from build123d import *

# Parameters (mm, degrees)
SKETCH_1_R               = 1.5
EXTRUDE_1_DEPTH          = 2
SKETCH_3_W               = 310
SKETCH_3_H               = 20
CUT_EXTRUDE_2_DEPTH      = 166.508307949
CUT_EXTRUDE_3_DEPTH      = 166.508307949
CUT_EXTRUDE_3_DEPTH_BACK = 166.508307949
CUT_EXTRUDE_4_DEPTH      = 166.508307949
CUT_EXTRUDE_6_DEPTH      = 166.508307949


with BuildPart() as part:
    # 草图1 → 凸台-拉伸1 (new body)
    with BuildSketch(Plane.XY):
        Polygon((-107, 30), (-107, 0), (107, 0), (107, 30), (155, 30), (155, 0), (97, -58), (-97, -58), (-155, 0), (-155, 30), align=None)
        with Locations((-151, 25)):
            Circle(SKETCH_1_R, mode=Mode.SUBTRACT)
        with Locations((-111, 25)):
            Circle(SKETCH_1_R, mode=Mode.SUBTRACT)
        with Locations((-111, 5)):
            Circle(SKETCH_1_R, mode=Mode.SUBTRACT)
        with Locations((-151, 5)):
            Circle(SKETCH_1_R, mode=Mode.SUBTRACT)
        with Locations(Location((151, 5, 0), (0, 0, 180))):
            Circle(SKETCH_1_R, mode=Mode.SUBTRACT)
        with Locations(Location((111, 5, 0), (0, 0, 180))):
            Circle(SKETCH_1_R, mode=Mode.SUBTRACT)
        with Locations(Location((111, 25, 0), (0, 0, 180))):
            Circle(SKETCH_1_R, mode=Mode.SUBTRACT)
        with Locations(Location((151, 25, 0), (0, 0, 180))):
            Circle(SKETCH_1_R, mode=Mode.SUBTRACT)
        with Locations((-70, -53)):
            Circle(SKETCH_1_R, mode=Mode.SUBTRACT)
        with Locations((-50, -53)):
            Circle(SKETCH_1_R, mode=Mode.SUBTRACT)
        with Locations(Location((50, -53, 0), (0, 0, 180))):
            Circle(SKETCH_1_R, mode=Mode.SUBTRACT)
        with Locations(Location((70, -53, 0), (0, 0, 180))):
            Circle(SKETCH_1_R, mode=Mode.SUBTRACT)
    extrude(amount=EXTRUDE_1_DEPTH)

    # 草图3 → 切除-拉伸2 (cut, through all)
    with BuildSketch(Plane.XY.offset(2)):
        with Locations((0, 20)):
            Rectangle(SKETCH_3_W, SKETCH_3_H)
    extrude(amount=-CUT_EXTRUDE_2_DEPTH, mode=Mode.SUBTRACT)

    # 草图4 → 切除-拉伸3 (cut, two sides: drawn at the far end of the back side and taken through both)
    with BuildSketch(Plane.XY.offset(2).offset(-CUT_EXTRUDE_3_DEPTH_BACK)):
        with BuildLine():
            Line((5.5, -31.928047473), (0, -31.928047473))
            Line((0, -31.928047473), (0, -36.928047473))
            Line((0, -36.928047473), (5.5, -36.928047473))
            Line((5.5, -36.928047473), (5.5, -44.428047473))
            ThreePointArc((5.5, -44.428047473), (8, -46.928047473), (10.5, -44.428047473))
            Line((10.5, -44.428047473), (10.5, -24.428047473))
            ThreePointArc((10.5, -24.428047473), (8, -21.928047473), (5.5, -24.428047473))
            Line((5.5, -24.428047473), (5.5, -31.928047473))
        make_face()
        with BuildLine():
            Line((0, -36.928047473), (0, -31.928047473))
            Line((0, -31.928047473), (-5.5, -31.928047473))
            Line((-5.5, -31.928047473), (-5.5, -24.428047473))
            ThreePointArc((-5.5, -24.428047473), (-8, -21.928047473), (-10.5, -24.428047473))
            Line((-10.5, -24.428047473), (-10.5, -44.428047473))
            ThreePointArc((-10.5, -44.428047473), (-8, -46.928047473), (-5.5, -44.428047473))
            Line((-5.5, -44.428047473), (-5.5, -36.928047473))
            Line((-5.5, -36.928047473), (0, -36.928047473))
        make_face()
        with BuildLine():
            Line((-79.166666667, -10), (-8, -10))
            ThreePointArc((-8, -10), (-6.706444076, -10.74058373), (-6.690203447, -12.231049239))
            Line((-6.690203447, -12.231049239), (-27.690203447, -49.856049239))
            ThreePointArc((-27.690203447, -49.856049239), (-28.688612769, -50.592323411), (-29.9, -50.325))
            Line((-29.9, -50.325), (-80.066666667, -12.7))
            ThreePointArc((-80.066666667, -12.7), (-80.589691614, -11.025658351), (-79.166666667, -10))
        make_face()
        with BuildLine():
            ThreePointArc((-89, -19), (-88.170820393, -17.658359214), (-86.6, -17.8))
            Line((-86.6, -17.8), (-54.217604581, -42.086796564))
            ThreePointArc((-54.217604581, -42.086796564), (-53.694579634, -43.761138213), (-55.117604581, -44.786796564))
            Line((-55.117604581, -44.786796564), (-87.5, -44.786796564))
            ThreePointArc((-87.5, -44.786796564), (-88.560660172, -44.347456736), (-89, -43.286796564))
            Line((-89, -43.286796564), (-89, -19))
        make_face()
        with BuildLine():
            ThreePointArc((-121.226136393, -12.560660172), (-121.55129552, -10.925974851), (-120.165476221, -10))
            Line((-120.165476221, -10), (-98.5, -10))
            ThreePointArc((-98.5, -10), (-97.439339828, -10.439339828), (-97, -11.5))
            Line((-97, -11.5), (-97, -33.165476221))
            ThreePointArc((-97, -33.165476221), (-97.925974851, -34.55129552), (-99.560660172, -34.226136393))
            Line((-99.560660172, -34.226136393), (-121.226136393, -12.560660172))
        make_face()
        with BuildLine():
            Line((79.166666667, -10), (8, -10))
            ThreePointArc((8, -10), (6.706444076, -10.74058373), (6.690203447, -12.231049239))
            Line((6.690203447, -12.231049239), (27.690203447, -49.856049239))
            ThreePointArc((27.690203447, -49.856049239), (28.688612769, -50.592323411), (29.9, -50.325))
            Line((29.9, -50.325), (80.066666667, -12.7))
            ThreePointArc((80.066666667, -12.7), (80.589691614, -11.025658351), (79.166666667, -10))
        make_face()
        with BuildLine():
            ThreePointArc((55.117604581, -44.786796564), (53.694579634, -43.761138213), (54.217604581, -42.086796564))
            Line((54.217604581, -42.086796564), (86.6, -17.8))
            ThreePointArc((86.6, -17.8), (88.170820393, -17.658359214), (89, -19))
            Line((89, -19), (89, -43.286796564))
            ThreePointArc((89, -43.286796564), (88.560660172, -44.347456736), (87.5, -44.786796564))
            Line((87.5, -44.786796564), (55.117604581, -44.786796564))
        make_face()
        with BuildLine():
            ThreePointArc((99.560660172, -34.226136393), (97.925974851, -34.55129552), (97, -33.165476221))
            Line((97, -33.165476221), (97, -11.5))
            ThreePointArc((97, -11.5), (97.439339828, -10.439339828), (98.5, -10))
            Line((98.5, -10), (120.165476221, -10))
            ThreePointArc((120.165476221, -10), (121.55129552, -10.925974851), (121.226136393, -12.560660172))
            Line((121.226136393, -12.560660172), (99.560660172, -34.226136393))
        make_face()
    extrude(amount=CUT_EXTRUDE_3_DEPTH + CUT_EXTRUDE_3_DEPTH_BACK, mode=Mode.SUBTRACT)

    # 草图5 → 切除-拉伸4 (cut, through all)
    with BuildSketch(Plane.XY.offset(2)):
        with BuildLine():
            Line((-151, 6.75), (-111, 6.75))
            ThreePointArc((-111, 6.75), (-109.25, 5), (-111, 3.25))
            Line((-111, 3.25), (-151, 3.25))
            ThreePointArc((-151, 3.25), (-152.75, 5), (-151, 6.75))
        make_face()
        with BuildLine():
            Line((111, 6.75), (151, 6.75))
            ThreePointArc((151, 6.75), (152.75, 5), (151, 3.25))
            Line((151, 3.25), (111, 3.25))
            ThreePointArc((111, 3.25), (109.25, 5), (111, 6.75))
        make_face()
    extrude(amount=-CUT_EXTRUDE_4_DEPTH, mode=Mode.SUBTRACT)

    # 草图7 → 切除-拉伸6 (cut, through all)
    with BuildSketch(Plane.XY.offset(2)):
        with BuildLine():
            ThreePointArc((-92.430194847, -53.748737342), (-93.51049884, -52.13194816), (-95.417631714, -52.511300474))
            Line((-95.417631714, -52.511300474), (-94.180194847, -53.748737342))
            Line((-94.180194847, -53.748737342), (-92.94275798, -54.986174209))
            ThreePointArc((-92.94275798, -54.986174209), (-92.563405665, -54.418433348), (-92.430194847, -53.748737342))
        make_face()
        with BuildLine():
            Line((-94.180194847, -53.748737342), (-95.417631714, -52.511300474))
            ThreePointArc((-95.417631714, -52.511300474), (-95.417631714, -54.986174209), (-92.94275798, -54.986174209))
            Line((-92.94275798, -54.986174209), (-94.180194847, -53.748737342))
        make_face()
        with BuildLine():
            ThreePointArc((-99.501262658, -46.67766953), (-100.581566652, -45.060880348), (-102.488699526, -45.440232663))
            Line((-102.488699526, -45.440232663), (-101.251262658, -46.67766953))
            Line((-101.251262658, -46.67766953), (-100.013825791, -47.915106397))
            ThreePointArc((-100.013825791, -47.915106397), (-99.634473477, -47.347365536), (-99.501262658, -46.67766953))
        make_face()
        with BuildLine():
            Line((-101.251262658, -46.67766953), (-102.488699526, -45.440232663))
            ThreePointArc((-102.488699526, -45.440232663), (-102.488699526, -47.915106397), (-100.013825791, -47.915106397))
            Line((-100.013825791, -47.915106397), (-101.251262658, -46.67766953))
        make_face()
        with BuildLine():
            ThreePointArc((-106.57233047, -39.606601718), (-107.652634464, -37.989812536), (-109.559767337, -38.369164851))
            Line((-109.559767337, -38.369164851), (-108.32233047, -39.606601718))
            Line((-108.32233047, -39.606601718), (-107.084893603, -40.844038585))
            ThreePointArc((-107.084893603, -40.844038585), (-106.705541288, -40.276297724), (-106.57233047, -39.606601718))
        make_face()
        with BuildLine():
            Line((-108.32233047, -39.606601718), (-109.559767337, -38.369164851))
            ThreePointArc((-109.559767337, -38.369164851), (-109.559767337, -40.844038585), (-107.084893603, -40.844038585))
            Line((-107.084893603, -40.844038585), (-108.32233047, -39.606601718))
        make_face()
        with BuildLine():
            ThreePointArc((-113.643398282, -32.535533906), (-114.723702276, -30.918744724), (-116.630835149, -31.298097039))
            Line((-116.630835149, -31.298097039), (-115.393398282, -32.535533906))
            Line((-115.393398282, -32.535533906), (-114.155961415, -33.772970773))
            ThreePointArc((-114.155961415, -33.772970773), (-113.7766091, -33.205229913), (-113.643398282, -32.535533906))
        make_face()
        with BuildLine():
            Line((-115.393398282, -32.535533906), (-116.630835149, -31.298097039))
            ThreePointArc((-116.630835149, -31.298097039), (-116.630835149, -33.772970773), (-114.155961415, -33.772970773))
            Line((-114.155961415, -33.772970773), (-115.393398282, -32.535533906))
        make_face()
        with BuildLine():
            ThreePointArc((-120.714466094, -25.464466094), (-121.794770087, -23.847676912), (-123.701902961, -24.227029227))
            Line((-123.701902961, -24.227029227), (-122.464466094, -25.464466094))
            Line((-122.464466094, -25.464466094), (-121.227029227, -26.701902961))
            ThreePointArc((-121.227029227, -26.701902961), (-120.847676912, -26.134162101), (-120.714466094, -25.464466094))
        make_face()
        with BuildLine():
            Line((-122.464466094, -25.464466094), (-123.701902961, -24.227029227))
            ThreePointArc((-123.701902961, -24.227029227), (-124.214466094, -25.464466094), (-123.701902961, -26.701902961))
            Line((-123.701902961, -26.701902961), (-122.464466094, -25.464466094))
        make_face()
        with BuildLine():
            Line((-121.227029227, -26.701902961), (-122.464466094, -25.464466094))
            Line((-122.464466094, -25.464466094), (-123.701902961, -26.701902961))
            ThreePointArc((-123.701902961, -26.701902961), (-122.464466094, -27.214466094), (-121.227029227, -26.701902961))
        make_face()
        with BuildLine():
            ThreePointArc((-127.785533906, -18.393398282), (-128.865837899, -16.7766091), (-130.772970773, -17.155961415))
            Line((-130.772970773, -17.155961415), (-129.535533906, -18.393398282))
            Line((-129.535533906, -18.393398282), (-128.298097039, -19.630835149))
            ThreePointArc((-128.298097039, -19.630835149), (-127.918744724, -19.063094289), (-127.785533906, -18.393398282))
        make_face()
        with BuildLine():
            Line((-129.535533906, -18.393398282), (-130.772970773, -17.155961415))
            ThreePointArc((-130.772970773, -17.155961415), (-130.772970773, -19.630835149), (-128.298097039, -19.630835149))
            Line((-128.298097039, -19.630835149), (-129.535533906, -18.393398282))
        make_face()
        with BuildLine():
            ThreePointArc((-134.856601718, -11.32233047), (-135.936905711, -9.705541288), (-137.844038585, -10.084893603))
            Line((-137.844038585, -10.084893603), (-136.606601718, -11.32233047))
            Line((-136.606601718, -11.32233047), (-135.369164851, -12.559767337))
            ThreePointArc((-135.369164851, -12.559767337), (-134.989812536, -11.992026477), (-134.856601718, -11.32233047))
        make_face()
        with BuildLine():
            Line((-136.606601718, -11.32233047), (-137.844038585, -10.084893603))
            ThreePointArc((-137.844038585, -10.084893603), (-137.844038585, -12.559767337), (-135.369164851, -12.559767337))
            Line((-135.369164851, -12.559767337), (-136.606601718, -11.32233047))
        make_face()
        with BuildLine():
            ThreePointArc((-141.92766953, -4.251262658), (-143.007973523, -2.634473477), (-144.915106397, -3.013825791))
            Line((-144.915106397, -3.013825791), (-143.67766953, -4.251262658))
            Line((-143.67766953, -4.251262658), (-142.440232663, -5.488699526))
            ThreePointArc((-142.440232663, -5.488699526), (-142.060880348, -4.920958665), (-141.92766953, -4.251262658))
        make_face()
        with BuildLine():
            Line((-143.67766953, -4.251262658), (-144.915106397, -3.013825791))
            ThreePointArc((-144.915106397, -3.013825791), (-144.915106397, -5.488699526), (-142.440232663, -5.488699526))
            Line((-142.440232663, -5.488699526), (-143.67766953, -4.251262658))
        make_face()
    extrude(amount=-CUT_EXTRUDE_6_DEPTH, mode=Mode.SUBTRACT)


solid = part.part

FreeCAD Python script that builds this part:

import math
import FreeCAD as App
import Part
import Sketcher

V = App.Vector


def add_polygon(sketch, points):
    """Adds a closed chain of lines whose ends are joined by coincident constraints."""
    first, n = sketch.GeometryCount, len(points)
    for a, b in zip(points, points[1:] + points[:1]):
        sketch.addGeometry(Part.LineSegment(App.Vector(*a, 0), App.Vector(*b, 0)), False)
    for i in range(n):
        sketch.addConstraint(Sketcher.Constraint("Coincident", first + i, 2, first + (i + 1) % n, 1))

doc = App.newDocument("Part")
params = doc.addObject("Spreadsheet::Sheet", "Params")
for row, (alias, value) in enumerate([
    ("sketch1_diameter", "3 mm"),
    ("sketch1_width", "48 mm"),
    ("sketch1_width2", "194 mm"),
    ("sketch1_width3", "214 mm"),
    ("sketch1_height", "30 mm"),
    ("pad1_length", "2 mm"),
    ("sketch2_width", "310 mm"),
    ("sketch2_height", "20 mm"),
    ("sketch3_radius", "2.5 mm"),
    ("sketch3_radius2", "1.5 mm"),
    ("sketch3_width", "11 mm"),
    ("sketch3_height", "20 mm"),
    ("sketch3_height2", "7.5 mm"),
    ("sketch4_width", "40 mm"),
    ("sketch4_radius", "1.75 mm"),
    ("sketch5_radius", "1.75 mm"),
], start=1):
    params.set(f"A{row}", alias)
    params.set(f"B{row}", "=" + value)
    params.setAlias(f"B{row}", alias)

body = doc.addObject("PartDesign::Body", "Body")

sketch1 = body.newObject("Sketcher::SketchObject", "Sketch")
sketch1.AttachmentSupport = (doc.getObject("XY_Plane"), [""])
sketch1.MapMode = "FlatFace"
add_polygon(sketch1, [(-107, 0), (-107, 30), (-155, 30), (-155, 0), (-97, -58), (97, -58), (155, 0), (155, 30), (107, 30), (107, 0)])
sketch1.addGeometry(Part.Circle(V(70, -53, 0), V(0, 0, 1), 1.5), False)
sketch1.addGeometry(Part.Circle(V(50, -53, 0), V(0, 0, 1), 1.5), False)
sketch1.addGeometry(Part.Circle(V(-50, -53, 0), V(0, 0, 1), 1.5), False)
sketch1.addGeometry(Part.Circle(V(-70, -53, 0), V(0, 0, 1), 1.5), False)
sketch1.addGeometry(Part.Circle(V(151, 5, 0), V(0, 0, 1), 1.5), False)
sketch1.addGeometry(Part.Circle(V(111, 5, 0), V(0, 0, 1), 1.5), False)
sketch1.addGeometry(Part.Circle(V(151, 25, 0), V(0, 0, 1), 1.5), False)
sketch1.addGeometry(Part.Circle(V(111, 25, 0), V(0, 0, 1), 1.5), False)
sketch1.addGeometry(Part.Circle(V(-111, 5, 0), V(0, 0, 1), 1.5), False)
sketch1.addGeometry(Part.Circle(V(-151, 5, 0), V(0, 0, 1), 1.5), False)
sketch1.addGeometry(Part.Circle(V(-111, 25, 0), V(0, 0, 1), 1.5), False)
sketch1.addGeometry(Part.Circle(V(-151, 25, 0), V(0, 0, 1), 1.5), False)
sketch1.addConstraint(Sketcher.Constraint("Vertical", 0))
sketch1.addConstraint(Sketcher.Constraint("Horizontal", 1))
sketch1.addConstraint(Sketcher.Constraint("Vertical", 2))
sketch1.addConstraint(Sketcher.Constraint("Horizontal", 4))
sketch1.addConstraint(Sketcher.Constraint("Vertical", 6))
sketch1.addConstraint(Sketcher.Constraint("Horizontal", 7))
sketch1.addConstraint(Sketcher.Constraint("Vertical", 8))
sketch1.addConstraint(Sketcher.Constraint("Horizontal", 9))
sketch1.addConstraint(Sketcher.Constraint("Equal", 10, 11))
sketch1.addConstraint(Sketcher.Constraint("Equal", 11, 12))
sketch1.addConstraint(Sketcher.Constraint("Equal", 12, 13))
sketch1.addConstraint(Sketcher.Constraint("Equal", 13, 14))
sketch1.addConstraint(Sketcher.Constraint("Equal", 14, 15))
sketch1.addConstraint(Sketcher.Constraint("Equal", 15, 16))
sketch1.addConstraint(Sketcher.Constraint("Equal", 16, 17))
sketch1.addConstraint(Sketcher.Constraint("Equal", 17, 18))
sketch1.addConstraint(Sketcher.Constraint("Equal", 18, 19))
sketch1.addConstraint(Sketcher.Constraint("Equal", 19, 20))
sketch1.addConstraint(Sketcher.Constraint("Equal", 20, 21))
sketch1.addConstraint(Sketcher.Constraint("Symmetric", 2, 2, 5, 2, -1, 1))
sketch1.addConstraint(Sketcher.Constraint("Symmetric", 8, 2, 9, 2, -1, 1))
sketch1.addConstraint(Sketcher.Constraint("Symmetric", 11, 3, 12, 3, -2))
sketch1.addConstraint(Sketcher.Constraint("Symmetric", 10, 3, 13, 3, -2))
sketch1.addConstraint(Sketcher.Constraint("Symmetric", 15, 3, 18, 3, -2))
sketch1.addConstraint(Sketcher.Constraint("Symmetric", 14, 3, 19, 3, -2))
sketch1.addConstraint(Sketcher.Constraint("Symmetric", 17, 3, 20, 3, -2))
sketch1.addConstraint(Sketcher.Constraint("Symmetric", 16, 3, 21, 3, -2))
sketch1.addConstraint(Sketcher.Constraint("PointOnObject", 2, 2, -1))
sketch1.addConstraint(Sketcher.Constraint("Perpendicular", 3, 5))
sketch1.addConstraint(Sketcher.Constraint("Horizontal", 10, 3, 11, 3))
sketch1.addConstraint(Sketcher.Constraint("Horizontal", 14, 3, 15, 3))
sketch1.addConstraint(Sketcher.Constraint("Horizontal", 16, 3, 17, 3))
sketch1.addConstraint(Sketcher.Constraint("Horizontal", 1, 2, 6, 2))
sketch1.addConstraint(Sketcher.Constraint("Vertical", 14, 3, 16, 3))
sketch1.addConstraint(Sketcher.Constraint("Vertical", 15, 3, 17, 3))
sketch1.addConstraint(Sketcher.Constraint("Equal", 3, 5))
sketch1.addConstraint(Sketcher.Constraint("Diameter", 10, 3.0))
sketch1.addConstraint(Sketcher.Constraint("DistanceX", 1, 2, 1, 1, 48.0))
sketch1.addConstraint(Sketcher.Constraint("DistanceX", 4, 1, 4, 2, 194.0))
sketch1.addConstraint(Sketcher.Constraint("DistanceX", 9, 2, 9, 1, 214.0))
sketch1.addConstraint(Sketcher.Constraint("DistanceY", 0, 1, 0, 2, 30.0))
sketch1.addConstraint(Sketcher.Constraint("DistanceX", -1, 1, 10, 3, 70.0))
sketch1.addConstraint(Sketcher.Constraint("DistanceY", 10, 3, -1, 1, 53.0))
sketch1.addConstraint(Sketcher.Constraint("DistanceX", -1, 1, 11, 3, 50.0))
sketch1.addConstraint(Sketcher.Constraint("DistanceX", -1, 1, 14, 3, 151.0))
sketch1.addConstraint(Sketcher.Constraint("DistanceY", -1, 1, 14, 3, 5.0))
sketch1.addConstraint(Sketcher.Constraint("DistanceX", -1, 1, 15, 3, 111.0))
sketch1.addConstraint(Sketcher.Constraint("DistanceY", -1, 1, 16, 3, 25.0))
sketch1.setExpression("Constraints[46]", "Params.sketch1_diameter")
sketch1.setExpression("Constraints[47]", "Params.sketch1_width")
sketch1.setExpression("Constraints[48]", "Params.sketch1_width2")
sketch1.setExpression("Constraints[49]", "Params.sketch1_width3")
sketch1.setExpression("Constraints[50]", "Params.sketch1_height")
pad1 = body.newObject("PartDesign::Pad", "Pad")
pad1.Profile = sketch1
pad1.setExpression("Length", "Params.pad1_length")

sketch2 = body.newObject("Sketcher::SketchObject", "Sketch001")
sketch2.AttachmentSupport = (doc.getObject("XY_Plane"), [""])
sketch2.MapMode = "FlatFace"
sketch2.AttachmentOffset = App.Placement(V(0, 0, 2), App.Rotation())
add_polygon(sketch2, [(-155, 30), (-155, 10), (155, 10), (155, 30)])
sketch2.addConstraint(Sketcher.Constraint("Vertical", 0))
sketch2.addConstraint(Sketcher.Constraint("Horizontal", 1))
sketch2.addConstraint(Sketcher.Constraint("Vertical", 2))
sketch2.addConstraint(Sketcher.Constraint("Horizontal", 3))
sketch2.addConstraint(Sketcher.Constraint("DistanceX", 1, 1, 1, 2, 310.0))
sketch2.addConstraint(Sketcher.Constraint("DistanceY", 0, 2, 0, 1, 20.0))
sketch2.addConstraint(Sketcher.Constraint("DistanceX", 0, 2, -1, 1, 155.0))
sketch2.addConstraint(Sketcher.Constraint("DistanceY", -1, 1, 0, 2, 10.0))
sketch2.setExpression("Constraints[8]", "Params.sketch2_width")
sketch2.setExpression("Constraints[9]", "Params.sketch2_height")
pocket1 = body.newObject("PartDesign::Pocket", "Pocket")
pocket1.Profile = sketch2
pocket1.Type = "ThroughAll"

sketch3 = body.newObject("Sketcher::SketchObject", "Sketch002")
sketch3.AttachmentSupport = (doc.getObject("XY_Plane"), [""])
sketch3.MapMode = "FlatFace"
sketch3.AttachmentOffset = App.Placement(V(0, 0, 2), App.Rotation())
sketch3.addGeometry(Part.LineSegment(V(5.5, -31.9, 0), V(-5.5, -31.9, 0)), False)
sketch3.addGeometry(Part.LineSegment(V(-5.5, -31.9, 0), V(-5.5, -24.4, 0)), False)
sketch3.addGeometry(Part.ArcOfCircle(Part.Circle(V(-8, -24.4, 0), V(0, 0, 1), 2.5), math.radians(0), math.radians(180)), False)
sketch3.addGeometry(Part.LineSegment(V(-10.5, -24.4, 0), V(-10.5, -44.4, 0)), False)
sketch3.addGeometry(Part.ArcOfCircle(Part.Circle(V(-8, -44.4, 0), V(0, 0, 1), 2.5), math.radians(180), math.radians(360)), False)
sketch3.addGeometry(Part.LineSegment(V(-5.5, -44.4, 0), V(-5.5, -36.9, 0)), False)
sketch3.addGeometry(Part.LineSegment(V(-5.5, -36.9, 0), V(5.5, -36.9, 0)), False)
sketch3.addGeometry(Part.LineSegment(V(5.5, -36.9, 0), V(5.5, -44.4, 0)), False)
sketch3.addGeometry(Part.ArcOfCircle(Part.Circle(V(8, -44.4, 0), V(0, 0, 1), 2.5), math.radians(180), math.radians(360)), False)
sketch3.addGeometry(Part.LineSegment(V(10.5, -44.4, 0), V(10.5, -24.4, 0)), False)
sketch3.addGeometry(Part.ArcOfCircle(Part.Circle(V(8, -24.4, 0), V(0, 0, 1), 2.5), math.radians(0), math.radians(180)), False)
sketch3.addGeometry(Part.LineSegment(V(5.5, -24.4, 0), V(5.5, -31.9, 0)), False)
sketch3.addGeometry(Part.LineSegment(V(-8, -10, 0), V(-79.2, -10, 0)), False)
sketch3.addGeometry(Part.ArcOfCircle(Part.Circle(V(-79.2, -11.5, 0), V(0, 0, 1), 1.5), math.radians(90), math.radians(233)), False)
sketch3.addGeometry(Part.LineSegment(V(-80.1, -12.7, 0), V(-29.9, -50.3, 0)), False)
sketch3.addGeometry(Part.ArcOfCircle(Part.Circle(V(-29, -49.1, 0), V(0, 0, 1), 1.5), math.radians(-127), math.radians(-29)), False)
sketch3.addGeometry(Part.LineSegment(V(-27.7, -49.9, 0), V(-6.7, -12.2, 0)), False)
sketch3.addGeometry(Part.ArcOfCircle(Part.Circle(V(-8, -11.5, 0), V(0, 0, 1), 1.5), math.radians(-29), math.radians(90)), False)
sketch3.addGeometry(Part.ArcOfCircle(Part.Circle(V(-87.5, -19, 0), V(0, 0, 1), 1.5), math.radians(53), math.radians(180)), False)
sketch3.addGeometry(Part.LineSegment(V(-89, -19, 0), V(-89, -43.3, 0)), False)
sketch3.addGeometry(Part.ArcOfCircle(Part.Circle(V(-87.5, -43.3, 0), V(0, 0, 1), 1.5), math.radians(180), math.radians(270)), False)
sketch3.addGeometry(Part.LineSegment(V(-87.5, -44.8, 0), V(-55.1, -44.8, 0)), False)
sketch3.addGeometry(Part.ArcOfCircle(Part.Circle(V(-55.1, -43.3, 0), V(0, 0, 1), 1.5), math.radians(-90), math.radians(53)), False)
sketch3.addGeometry(Part.LineSegment(V(-54.2, -42.1, 0), V(-86.6, -17.8, 0)), False)
sketch3.addGeometry(Part.ArcOfCircle(Part.Circle(V(-120.2, -11.5, 0), V(0, 0, 1), 1.5), math.radians(90), math.radians(225)), False)
sketch3.addGeometry(Part.LineSegment(V(-121.2, -12.6, 0), V(-99.6, -34.2, 0)), False)
sketch3.addGeometry(Part.ArcOfCircle(Part.Circle(V(-98.5, -33.2, 0), V(0, 0, 1), 1.5), math.radians(-135), math.radians(0)), False)
sketch3.addGeometry(Part.LineSegment(V(-97, -33.2, 0), V(-97, -11.5, 0)), False)
sketch3.addGeometry(Part.ArcOfCircle(Part.Circle(V(-98.5, -11.5, 0), V(0, 0, 1), 1.5), math.radians(0), math.radians(90)), False)
sketch3.addGeometry(Part.LineSegment(V(-98.5, -10, 0), V(-120.2, -10, 0)), False)
sketch3.addGeometry(Part.LineSegment(V(79.2, -10, 0), V(8, -10, 0)), False)
sketch3.addGeometry(Part.ArcOfCircle(Part.Circle(V(8, -11.5, 0), V(0, 0, 1), 1.5), math.radians(90), math.radians(209)), False)
sketch3.addGeometry(Part.LineSegment(V(6.7, -12.2, 0), V(27.7, -49.9, 0)), False)
sketch3.addGeometry(Part.ArcOfCircle(Part.Circle(V(29, -49.1, 0), V(0, 0, 1), 1.5), math.radians(-151), math.radians(-53)), False)
sketch3.addGeometry(Part.LineSegment(V(29.9, -50.3, 0), V(80.1, -12.7, 0)), False)
sketch3.addGeometry(Part.ArcOfCircle(Part.Circle(V(79.2, -11.5, 0), V(0, 0, 1), 1.5), math.radians(-53), math.radians(90)), False)
sketch3.addGeometry(Part.ArcOfCircle(Part.Circle(V(55.1, -43.3, 0), V(0, 0, 1), 1.5), math.radians(127), math.radians(270)), False)
sketch3.addGeometry(Part.LineSegment(V(55.1, -44.8, 0), V(87.5, -44.8, 0)), False)
sketch3.addGeometry(Part.ArcOfCircle(Part.Circle(V(87.5, -43.3, 0), V(0, 0, 1), 1.5), math.radians(-90), math.radians(0)), False)
sketch3.addGeometry(Part.LineSegment(V(89, -43.3, 0), V(89, -19, 0)), False)
sketch3.addGeometry(Part.ArcOfCircle(Part.Circle(V(87.5, -19, 0), V(0, 0, 1), 1.5), math.radians(0), math.radians(127)), False)
sketch3.addGeometry(Part.LineSegment(V(86.6, -17.8, 0), V(54.2, -42.1, 0)), False)
sketch3.addGeometry(Part.ArcOfCircle(Part.Circle(V(98.5, -33.2, 0), V(0, 0, 1), 1.5), math.radians(180), math.radians(315)), False)
sketch3.addGeometry(Part.LineSegment(V(99.6, -34.2, 0), V(121.2, -12.6, 0)), False)
sketch3.addGeometry(Part.ArcOfCircle(Part.Circle(V(120.2, -11.5, 0), V(0, 0, 1), 1.5), math.radians(-45), math.radians(90)), False)
sketch3.addGeometry(Part.LineSegment(V(120.2, -10, 0), V(98.5, -10, 0)), False)
sketch3.addGeometry(Part.ArcOfCircle(Part.Circle(V(98.5, -11.5, 0), V(0, 0, 1), 1.5), math.radians(90), math.radians(180)), False)
sketch3.addGeometry(Part.LineSegment(V(97, -11.5, 0), V(97, -33.2, 0)), False)
sketch3.addConstraint(Sketcher.Constraint("Coincident", 0, 2, 1, 1))
sketch3.addConstraint(Sketcher.Constraint("Tangent", 1, 2, 2, 1))
sketch3.addConstraint(Sketcher.Constraint("Tangent", 2, 2, 3, 1))
sketch3.addConstraint(Sketcher.Constraint("Tangent", 3, 2, 4, 1))
sketch3.addConstraint(Sketcher.Constraint("Tangent", 4, 2, 5, 1))
sketch3.addConstraint(Sketcher.Constraint("Coincident", 5, 2, 6, 1))
sketch3.addConstraint(Sketcher.Constraint("Coincident", 6, 2, 7, 1))
sketch3.addConstraint(Sketcher.Constraint("Tangent", 7, 2, 8, 1))
sketch3.addConstraint(Sketcher.Constraint("Tangent", 8, 2, 9, 1))
sketch3.addConstraint(Sketcher.Constraint("Tangent", 9, 2, 10, 1))
sketch3.addConstraint(Sketcher.Constraint("Tangent", 10, 2, 11, 1))
sketch3.addConstraint(Sketcher.Constraint("Coincident", 11, 2, 0, 1))
sketch3.addConstraint(Sketcher.Constraint("Tangent", 12, 2, 13, 1))
sketch3.addConstraint(Sketcher.Constraint("Tangent", 13, 2, 14, 1))
sketch3.addConstraint(Sketcher.Constraint("Tangent", 14, 2, 15, 1))
sketch3.addConstraint(Sketcher.Constraint("Tangent", 15, 2, 16, 1))
sketch3.addConstraint(Sketcher.Constraint("Tangent", 16, 2, 17, 1))
sketch3.addConstraint(Sketcher.Constraint("Tangent", 17, 2, 12, 1))
sketch3.addConstraint(Sketcher.Constraint("Tangent", 18, 2, 19, 1))
sketch3.addConstraint(Sketcher.Constraint("Tangent", 19, 2, 20, 1))
sketch3.addConstraint(Sketcher.Constraint("Tangent", 20, 2, 21, 1))
sketch3.addConstraint(Sketcher.Constraint("Tangent", 21, 2, 22, 1))
sketch3.addConstraint(Sketcher.Constraint("Tangent", 22, 2, 23, 1))
sketch3.addConstraint(Sketcher.Constraint("Tangent", 23, 2, 18, 1))
sketch3.addConstraint(Sketcher.Constraint("Tangent", 24, 2, 25, 1))
sketch3.addConstraint(Sketcher.Constraint("Tangent", 25, 2, 26, 1))
sketch3.addConstraint(Sketcher.Constraint("Tangent", 26, 2, 27, 1))
sketch3.addConstraint(Sketcher.Constraint("Tangent", 27, 2, 28, 1))
sketch3.addConstraint(Sketcher.Constraint("Tangent", 28, 2, 29, 1))
sketch3.addConstraint(Sketcher.Constraint("Tangent", 29, 2, 24, 1))
sketch3.addConstraint(Sketcher.Constraint("Tangent", 30, 2, 31, 1))
sketch3.addConstraint(Sketcher.Constraint("Tangent", 31, 2, 32, 1))
sketch3.addConstraint(Sketcher.Constraint("Tangent", 32, 2, 33, 1))
sketch3.addConstraint(Sketcher.Constraint("Tangent", 33, 2, 34, 1))
sketch3.addConstraint(Sketcher.Constraint("Tangent", 34, 2, 35, 1))
sketch3.addConstraint(Sketcher.Constraint("Tangent", 35, 2, 30, 1))
sketch3.addConstraint(Sketcher.Constraint("Tangent", 36, 2, 37, 1))
sketch3.addConstraint(Sketcher.Constraint("Tangent", 37, 2, 38, 1))
sketch3.addConstraint(Sketcher.Constraint("Tangent", 38, 2, 39, 1))
sketch3.addConstraint(Sketcher.Constraint("Tangent", 39, 2, 40, 1))
sketch3.addConstraint(Sketcher.Constraint("Tangent", 40, 2, 41, 1))
sketch3.addConstraint(Sketcher.Constraint("Tangent", 41, 2, 36, 1))
sketch3.addConstraint(Sketcher.Constraint("Tangent", 42, 2, 43, 1))
sketch3.addConstraint(Sketcher.Constraint("Tangent", 43, 2, 44, 1))
sketch3.addConstraint(Sketcher.Constraint("Tangent", 44, 2, 45, 1))
sketch3.addConstraint(Sketcher.Constraint("Tangent", 45, 2, 46, 1))
sketch3.addConstraint(Sketcher.Constraint("Tangent", 46, 2, 47, 1))
sketch3.addConstraint(Sketcher.Constraint("Tangent", 47, 2, 42, 1))
sketch3.addConstraint(Sketcher.Constraint("Horizontal", 0))
sketch3.addConstraint(Sketcher.Constraint("Vertical", 1))
sketch3.addConstraint(Sketcher.Constraint("Vertical", 3))
sketch3.addConstraint(Sketcher.Constraint("Vertical", 5))
sketch3.addConstraint(Sketcher.Constraint("Horizontal", 6))
sketch3.addConstraint(Sketcher.Constraint("Vertical", 7))
sketch3.addConstraint(Sketcher.Constraint("Vertical", 9))
sketch3.addConstraint(Sketcher.Constraint("Vertical", 11))
sketch3.addConstraint(Sketcher.Constraint("Horizontal", 12))
sketch3.addConstraint(Sketcher.Constraint("Vertical", 19))
sketch3.addConstraint(Sketcher.Constraint("Horizontal", 21))
sketch3.addConstraint(Sketcher.Constraint("Vertical", 27))
sketch3.addConstraint(Sketcher.Constraint("Horizontal", 29))
sketch3.addConstraint(Sketcher.Constraint("Horizontal", 30))
sketch3.addConstraint(Sketcher.Constraint("Horizontal", 37))
sketch3.addConstraint(Sketcher.Constraint("Vertical", 39))
sketch3.addConstraint(Sketcher.Constraint("Horizontal", 45))
sketch3.addConstraint(Sketcher.Constraint("Vertical", 47))
sketch3.addConstraint(Sketcher.Constraint("Equal", 2, 4))
sketch3.addConstraint(Sketcher.Constraint("Equal", 4, 8))
sketch3.addConstraint(Sketcher.Constraint("Equal", 8, 10))
sketch3.addConstraint(Sketcher.Constraint("Equal", 13, 15))
sketch3.addConstraint(Sketcher.Constraint("Equal", 15, 17))
sketch3.addConstraint(Sketcher.Constraint("Equal", 17, 18))
sketch3.addConstraint(Sketcher.Constraint("Equal", 18, 20))
sketch3.addConstraint(Sketcher.Constraint("Equal", 20, 22))
sketch3.addConstraint(Sketcher.Constraint("Equal", 22, 24))
sketch3.addConstraint(Sketcher.Constraint("Equal", 24, 26))
sketch3.addConstraint(Sketcher.Constraint("Equal", 26, 28))
sketch3.addConstraint(Sketcher.Constraint("Equal", 28, 31))
sketch3.addConstraint(Sketcher.Constraint("Equal", 31, 33))
sketch3.addConstraint(Sketcher.Constraint("Equal", 33, 35))
sketch3.addConstraint(Sketcher.Constraint("Equal", 35, 36))
sketch3.addConstraint(Sketcher.Constraint("Equal", 36, 38))
sketch3.addConstraint(Sketcher.Constraint("Equal", 38, 40))
sketch3.addConstraint(Sketcher.Constraint("Equal", 40, 42))
sketch3.addConstraint(Sketcher.Constraint("Equal", 42, 44))
sketch3.addConstraint(Sketcher.Constraint("Equal", 44, 46))
sketch3.addConstraint(Sketcher.Constraint("Symmetric", 4, 3, 8, 3, -2))
sketch3.addConstraint(Sketcher.Constraint("Symmetric", 17, 3, 31, 3, -2))
sketch3.addConstraint(Sketcher.Constraint("Symmetric", 15, 3, 33, 3, -2))
sketch3.addConstraint(Sketcher.Constraint("Symmetric", 22, 3, 36, 3, -2))
sketch3.addConstraint(Sketcher.Constraint("Symmetric", 18, 3, 40, 3, -2))
sketch3.addConstraint(Sketcher.Constraint("Symmetric", 26, 3, 42, 3, -2))
sketch3.addConstraint(Sketcher.Constraint("Symmetric", 24, 3, 44, 3, -2))
sketch3.addConstraint(Sketcher.Constraint("Parallel", 14, 23))
sketch3.addConstraint(Sketcher.Constraint("Parallel", 34, 41))
sketch3.addConstraint(Sketcher.Constraint("Perpendicular", 25, 43))
sketch3.addConstraint(Sketcher.Constraint("Horizontal", 2, 3, 10, 3))
sketch3.addConstraint(Sketcher.Constraint("Horizontal", 17, 3, 24, 3))
sketch3.addConstraint(Sketcher.Constraint("Vertical", 4, 3, 17, 3))
sketch3.addConstraint(Sketcher.Constraint("Equal", 1, 5))
sketch3.addConstraint(Sketcher.Constraint("Radius", 2, 2.5))
sketch3.addConstraint(Sketcher.Constraint("Radius", 13, 1.5))
sketch3.addConstraint(Sketcher.Constraint("DistanceX", 0, 2, 0, 1, 11.0))
sketch3.addConstraint(Sketcher.Constraint("DistanceY", 3, 2, 3, 1, 20.0))
sketch3.addConstraint(Sketcher.Constraint("DistanceY", 1, 1, 1, 2, 7.5))
sketch3.addConstraint(Sketcher.Constraint("DistanceX", 15, 3, -1, 1, 29.0))
sketch3.addConstraint(Sketcher.Constraint("DistanceY", 18, 3, -1, 1, 19.0))
sketch3.addConstraint(Sketcher.Constraint("DistanceY", 12, 2, -1, 1, 10.0))
sketch3.addConstraint(Sketcher.Constraint("DistanceX", 18, 2, -1, 1, 89.0))
sketch3.addConstraint(Sketcher.Constraint("DistanceX", 26, 2, -1, 1, 97.0))
sketch3.addConstraint(Sketcher.Constraint("DistanceY", 13, 2, -1, 1, 12.7))
sketch3.addConstraint(Sketcher.Constraint("DistanceY", 15, 3, -1, 1, 49.125))
sketch3.addConstraint(Sketcher.Constraint("Distance", 25, 30.63961))
sketch3.addConstraint(Sketcher.Constraint("DistanceX", 21, 1, 21, 2, 32.382395))
sketch3.addConstraint(Sketcher.Constraint("DistanceY", 2, 3, -1, 1, 24.428047))
sketch3.setExpression("Constraints[100]", "Params.sketch3_radius")
sketch3.setExpression("Constraints[101]", "Params.sketch3_radius2")
sketch3.setExpression("Constraints[102]", "Params.sketch3_width")
sketch3.setExpression("Constraints[103]", "Params.sketch3_height")
sketch3.setExpression("Constraints[104]", "Params.sketch3_height2")
pocket2 = body.newObject("PartDesign::Pocket", "Pocket001")
pocket2.Profile = sketch3
pocket2.Type = "ThroughAll"
pocket2.Midplane = True

sketch4 = body.newObject("Sketcher::SketchObject", "Sketch003")
sketch4.AttachmentSupport = (doc.getObject("XY_Plane"), [""])
sketch4.MapMode = "FlatFace"
sketch4.AttachmentOffset = App.Placement(V(0, 0, 2), App.Rotation())
sketch4.addGeometry(Part.LineSegment(V(-111, 6.8, 0), V(-151, 6.8, 0)), False)
sketch4.addGeometry(Part.ArcOfCircle(Part.Circle(V(-151, 5, 0), V(0, 0, 1), 1.8), math.radians(90), math.radians(270)), False)
sketch4.addGeometry(Part.LineSegment(V(-151, 3.2, 0), V(-111, 3.2, 0)), False)
sketch4.addGeometry(Part.ArcOfCircle(Part.Circle(V(-111, 5, 0), V(0, 0, 1), 1.8), math.radians(-90), math.radians(90)), False)
sketch4.addGeometry(Part.LineSegment(V(151, 6.8, 0), V(111, 6.8, 0)), False)
sketch4.addGeometry(Part.ArcOfCircle(Part.Circle(V(111, 5, 0), V(0, 0, 1), 1.8), math.radians(90), math.radians(270)), False)
sketch4.addGeometry(Part.LineSegment(V(111, 3.2, 0), V(151, 3.2, 0)), False)
sketch4.addGeometry(Part.ArcOfCircle(Part.Circle(V(151, 5, 0), V(0, 0, 1), 1.8), math.radians(-90), math.radians(90)), False)
sketch4.addConstraint(Sketcher.Constraint("Tangent", 0, 2, 1, 1))
sketch4.addConstraint(Sketcher.Constraint("Tangent", 1, 2, 2, 1))
sketch4.addConstraint(Sketcher.Constraint("Tangent", 2, 2, 3, 1))
sketch4.addConstraint(Sketcher.Constraint("Tangent", 3, 2, 0, 1))
sketch4.addConstraint(Sketcher.Constraint("Tangent", 4, 2, 5, 1))
sketch4.addConstraint(Sketcher.Constraint("Tangent", 5, 2, 6, 1))
sketch4.addConstraint(Sketcher.Constraint("Tangent", 6, 2, 7, 1))
sketch4.addConstraint(Sketcher.Constraint("Tangent", 7, 2, 4, 1))
sketch4.addConstraint(Sketcher.Constraint("Horizontal", 0))
sketch4.addConstraint(Sketcher.Constraint("Horizontal", 2))
sketch4.addConstraint(Sketcher.Constraint("Horizontal", 4))
sketch4.addConstraint(Sketcher.Constraint("Horizontal", 6))
sketch4.addConstraint(Sketcher.Constraint("Equal", 3, 5))
sketch4.addConstraint(Sketcher.Constraint("Symmetric", 3, 3, 5, 3, -2))
sketch4.addConstraint(Sketcher.Constraint("Equal", 2, 4))
sketch4.addConstraint(Sketcher.Constraint("DistanceX", 0, 2, 0, 1, 40.0))
sketch4.addConstraint(Sketcher.Constraint("Radius", 1, 1.75))
sketch4.addConstraint(Sketcher.Constraint("DistanceX", 1, 3, -1, 1, 151.0))
sketch4.addConstraint(Sketcher.Constraint("DistanceY", -1, 1, 1, 3, 5.0))
sketch4.setExpression("Constraints[15]", "Params.sketch4_width")
sketch4.setExpression("Constraints[16]", "Params.sketch4_radius")
pocket3 = body.newObject("PartDesign::Pocket", "Pocket002")
pocket3.Profile = sketch4
pocket3.Type = "ThroughAll"

sketch5 = body.newObject("Sketcher::SketchObject", "Sketch004")
sketch5.AttachmentSupport = (doc.getObject("XY_Plane"), [""])
sketch5.MapMode = "FlatFace"
sketch5.AttachmentOffset = App.Placement(V(0, 0, 2), App.Rotation())
sketch5.addGeometry(Part.ArcOfCircle(Part.Circle(V(-94.2, -53.7, 0), V(0, 0, 1), 1.8), math.radians(0), math.radians(135)), False)
sketch5.addGeometry(Part.ArcOfCircle(Part.Circle(V(-94.2, -53.7, 0), V(0, 0, 1), 1.8), math.radians(135), math.radians(315)), False)
sketch5.addGeometry(Part.ArcOfCircle(Part.Circle(V(-94.2, -53.7, 0), V(0, 0, 1), 1.8), math.radians(-45), math.radians(0)), False)
sketch5.addGeometry(Part.ArcOfCircle(Part.Circle(V(-101.3, -46.7, 0), V(0, 0, 1), 1.8), math.radians(0), math.radians(135)), False)
sketch5.addGeometry(Part.ArcOfCircle(Part.Circle(V(-101.3, -46.7, 0), V(0, 0, 1), 1.8), math.radians(135), math.radians(315)), False)
sketch5.addGeometry(Part.ArcOfCircle(Part.Circle(V(-101.3, -46.7, 0), V(0, 0, 1), 1.8), math.radians(-45), math.radians(0)), False)
sketch5.addGeometry(Part.ArcOfCircle(Part.Circle(V(-108.3, -39.6, 0), V(0, 0, 1), 1.8), math.radians(0), math.radians(135)), False)
sketch5.addGeometry(Part.ArcOfCircle(Part.Circle(V(-108.3, -39.6, 0), V(0, 0, 1), 1.8), math.radians(135), math.radians(315)), False)
sketch5.addGeometry(Part.ArcOfCircle(Part.Circle(V(-108.3, -39.6, 0), V(0, 0, 1), 1.8), math.radians(-45), math.radians(0)), False)
sketch5.addGeometry(Part.ArcOfCircle(Part.Circle(V(-115.4, -32.5, 0), V(0, 0, 1), 1.8), math.radians(0), math.radians(135)), False)
sketch5.addGeometry(Part.ArcOfCircle(Part.Circle(V(-115.4, -32.5, 0), V(0, 0, 1), 1.8), math.radians(135), math.radians(315)), False)
sketch5.addGeometry(Part.ArcOfCircle(Part.Circle(V(-115.4, -32.5, 0), V(0, 0, 1), 1.7), math.radians(-45), math.radians(0)), False)
sketch5.addGeometry(Part.ArcOfCircle(Part.Circle(V(-122.5, -25.5, 0), V(0, 0, 1), 1.7), math.radians(-45), math.radians(0)), False)
sketch5.addGeometry(Part.ArcOfCircle(Part.Circle(V(-122.5, -25.5, 0), V(0, 0, 1), 1.8), math.radians(0), math.radians(135)), False)
sketch5.addGeometry(Part.ArcOfCircle(Part.Circle(V(-122.5, -25.5, 0), V(0, 0, 1), 1.8), math.radians(135), math.radians(225)), False)
sketch5.addGeometry(Part.ArcOfCircle(Part.Circle(V(-122.5, -25.5, 0), V(0, 0, 1), 1.8), math.radians(-135), math.radians(-45)), False)
sketch5.addGeometry(Part.ArcOfCircle(Part.Circle(V(-129.5, -18.4, 0), V(0, 0, 1), 1.8), math.radians(0), math.radians(135)), False)
sketch5.addGeometry(Part.ArcOfCircle(Part.Circle(V(-129.5, -18.4, 0), V(0, 0, 1), 1.8), math.radians(135), math.radians(315)), False)
sketch5.addGeometry(Part.ArcOfCircle(Part.Circle(V(-129.5, -18.4, 0), V(0, 0, 1), 1.7), math.radians(-45), math.radians(0)), False)
sketch5.addGeometry(Part.ArcOfCircle(Part.Circle(V(-136.6, -11.3, 0), V(0, 0, 1), 1.8), math.radians(0), math.radians(135)), False)
sketch5.addGeometry(Part.ArcOfCircle(Part.Circle(V(-136.6, -11.3, 0), V(0, 0, 1), 1.8), math.radians(135), math.radians(315)), False)
sketch5.addGeometry(Part.ArcOfCircle(Part.Circle(V(-136.6, -11.3, 0), V(0, 0, 1), 1.7), math.radians(-45), math.radians(0)), False)
sketch5.addGeometry(Part.ArcOfCircle(Part.Circle(V(-143.7, -4.3, 0), V(0, 0, 1), 1.8), math.radians(0), math.radians(135)), False)
sketch5.addGeometry(Part.ArcOfCircle(Part.Circle(V(-143.7, -4.3, 0), V(0, 0, 1), 1.8), math.radians(135), math.radians(315)), False)
sketch5.addGeometry(Part.ArcOfCircle(Part.Circle(V(-143.7, -4.3, 0), V(0, 0, 1), 1.8), math.radians(-45), math.radians(0)), False)
sketch5.addConstraint(Sketcher.Constraint("Tangent", 0, 2, 1, 1))
sketch5.addConstraint(Sketcher.Constraint("Tangent", 1, 2, 2, 1))
sketch5.addConstraint(Sketcher.Constraint("Tangent", 2, 2, 0, 1))
sketch5.addConstraint(Sketcher.Constraint("Tangent", 3, 2, 4, 1))
sketch5.addConstraint(Sketcher.Constraint("Tangent", 4, 2, 5, 1))
sketch5.addConstraint(Sketcher.Constraint("Tangent", 5, 2, 3, 1))
sketch5.addConstraint(Sketcher.Constraint("Tangent", 6, 2, 7, 1))
sketch5.addConstraint(Sketcher.Constraint("Tangent", 7, 2, 8, 1))
sketch5.addConstraint(Sketcher.Constraint("Tangent", 8, 2, 6, 1))
sketch5.addConstraint(Sketcher.Constraint("Tangent", 9, 2, 10, 1))
sketch5.addConstraint(Sketcher.Constraint("Tangent", 10, 2, 11, 1))
sketch5.addConstraint(Sketcher.Constraint("Tangent", 11, 2, 9, 1))
sketch5.addConstraint(Sketcher.Constraint("Tangent", 12, 2, 13, 1))
sketch5.addConstraint(Sketcher.Constraint("Tangent", 13, 2, 14, 1))
sketch5.addConstraint(Sketcher.Constraint("Tangent", 14, 2, 15, 1))
sketch5.addConstraint(Sketcher.Constraint("Tangent", 15, 2, 12, 1))
sketch5.addConstraint(Sketcher.Constraint("Tangent", 16, 2, 17, 1))
sketch5.addConstraint(Sketcher.Constraint("Tangent", 17, 2, 18, 1))
sketch5.addConstraint(Sketcher.Constraint("Tangent", 18, 2, 16, 1))
sketch5.addConstraint(Sketcher.Constraint("Tangent", 19, 2, 20, 1))
sketch5.addConstraint(Sketcher.Constraint("Tangent", 20, 2, 21, 1))
sketch5.addConstraint(Sketcher.Constraint("Tangent", 21, 2, 19, 1))
sketch5.addConstraint(Sketcher.Constraint("Tangent", 22, 2, 23, 1))
sketch5.addConstraint(Sketcher.Constraint("Tangent", 23, 2, 24, 1))
sketch5.addConstraint(Sketcher.Constraint("Tangent", 24, 2, 22, 1))
sketch5.addConstraint(Sketcher.Constraint("Equal", 2, 3))
sketch5.addConstraint(Sketcher.Constraint("Equal", 5, 6))
sketch5.addConstraint(Sketcher.Constraint("Equal", 8, 9))
sketch5.addConstraint(Sketcher.Constraint("Equal", 11, 12))
sketch5.addConstraint(Sketcher.Constraint("Equal", 12, 13))
sketch5.addConstraint(Sketcher.Constraint("Equal", 15, 16))
sketch5.addConstraint(Sketcher.Constraint("Equal", 18, 19))
sketch5.addConstraint(Sketcher.Constraint("Equal", 21, 22))
sketch5.addConstraint(Sketcher.Constraint("Horizontal", 1, 3, 2, 2))
sketch5.addConstraint(Sketcher.Constraint("Horizontal", 4, 3, 5, 2))
sketch5.addConstraint(Sketcher.Constraint("Horizontal", 7, 3, 8, 2))
sketch5.addConstraint(Sketcher.Constraint("Horizontal", 10, 3, 11, 2))
sketch5.addConstraint(Sketcher.Constraint("Horizontal", 15, 3, 12, 2))
sketch5.addConstraint(Sketcher.Constraint("Horizontal", 14, 2, 15, 2))
sketch5.addConstraint(Sketcher.Constraint("Horizontal", 17, 3, 18, 2))
sketch5.addConstraint(Sketcher.Constraint("Horizontal", 20, 3, 21, 2))
sketch5.addConstraint(Sketcher.Constraint("Horizontal", 23, 3, 24, 2))
sketch5.addConstraint(Sketcher.Constraint("Vertical", 13, 2, 14, 2))
sketch5.addConstraint(Sketcher.Constraint("Radius", 0, 1.75))
sketch5.addConstraint(Sketcher.Constraint("DistanceY", 6, 3, -1, 1, 39.606602))
sketch5.addConstraint(Sketcher.Constraint("DistanceX", 9, 3, -1, 1, 115.393398))
sketch5.addConstraint(Sketcher.Constraint("DistanceY", 16, 3, -1, 1, 18.393398))
sketch5.addConstraint(Sketcher.Constraint("DistanceX", 19, 3, -1, 1, 136.606602))
sketch5.addConstraint(Sketcher.Constraint("DistanceY", 0, 2, -1, 1, 52.5113))
sketch5.addConstraint(Sketcher.Constraint("DistanceX", 3, 2, -1, 1, 102.4887))
sketch5.addConstraint(Sketcher.Constraint("DistanceY", 23, 2, -1, 1, 5.4887))
sketch5.addConstraint(Sketcher.Constraint("DistanceY", 3, 3, -1, 1, 46.67767))
sketch5.addConstraint(Sketcher.Constraint("DistanceX", 6, 3, -1, 1, 108.32233))
sketch5.addConstraint(Sketcher.Constraint("DistanceY", 19, 3, -1, 1, 11.32233))
sketch5.addConstraint(Sketcher.Constraint("DistanceX", 22, 3, -1, 1, 143.67767))
sketch5.addConstraint(Sketcher.Constraint("DistanceX", 0, 2, -1, 1, 95.417632))
sketch5.addConstraint(Sketcher.Constraint("DistanceY", 7, 2, -1, 1, 40.844039))
sketch5.addConstraint(Sketcher.Constraint("DistanceX", 10, 2, -1, 1, 114.155961))
sketch5.addConstraint(Sketcher.Constraint("DistanceY", 10, 2, -1, 1, 33.772971))
sketch5.addConstraint(Sketcher.Constraint("DistanceY", 13, 2, -1, 1, 24.227029))
sketch5.addConstraint(Sketcher.Constraint("DistanceX", 15, 2, -1, 1, 121.227029))
sketch5.addConstraint(Sketcher.Constraint("DistanceX", 16, 2, -1, 1, 130.772971))
sketch5.addConstraint(Sketcher.Constraint("DistanceY", 16, 2, -1, 1, 17.155961))
sketch5.addConstraint(Sketcher.Constraint("DistanceX", 19, 2, -1, 1, 137.844039))
sketch5.addConstraint(Sketcher.Constraint("DistanceX", 4, 3, 0, 2, 5.833631))
sketch5.addConstraint(Sketcher.Constraint("DistanceX", 11, 3, 6, 2, 5.833631))
sketch5.addConstraint(Sketcher.Constraint("DistanceX", 12, 3, 9, 2, 5.833631))
sketch5.addConstraint(Sketcher.Constraint("DistanceY", 9, 2, 12, 3, 5.833631))
sketch5.addConstraint(Sketcher.Constraint("DistanceY", 19, 2, 22, 3, 5.833631))
sketch5.addConstraint(Sketcher.Constraint("DistanceX", 0, 3, -1, 1, 94.180195))
sketch5.addConstraint(Sketcher.Constraint("DistanceX", 1, 2, -1, 1, 92.942758))
sketch5.addConstraint(Sketcher.Constraint("DistanceX", 4, 2, -1, 1, 100.013826))
sketch5.addConstraint(Sketcher.Constraint("DistanceX", 17, 2, -1, 1, 128.298097))
sketch5.addConstraint(Sketcher.Constraint("DistanceX", 20, 2, -1, 1, 135.369165))
sketch5.addConstraint(Sketcher.Constraint("DistanceX", 22, 2, -1, 1, 144.915106))
sketch5.setExpression("Constraints[43]", "Params.sketch5_radius")
pocket4 = body.newObject("PartDesign::Pocket", "Pocket003")
pocket4.Profile = sketch5
pocket4.Type = "ThroughAll"

doc.recompute()
